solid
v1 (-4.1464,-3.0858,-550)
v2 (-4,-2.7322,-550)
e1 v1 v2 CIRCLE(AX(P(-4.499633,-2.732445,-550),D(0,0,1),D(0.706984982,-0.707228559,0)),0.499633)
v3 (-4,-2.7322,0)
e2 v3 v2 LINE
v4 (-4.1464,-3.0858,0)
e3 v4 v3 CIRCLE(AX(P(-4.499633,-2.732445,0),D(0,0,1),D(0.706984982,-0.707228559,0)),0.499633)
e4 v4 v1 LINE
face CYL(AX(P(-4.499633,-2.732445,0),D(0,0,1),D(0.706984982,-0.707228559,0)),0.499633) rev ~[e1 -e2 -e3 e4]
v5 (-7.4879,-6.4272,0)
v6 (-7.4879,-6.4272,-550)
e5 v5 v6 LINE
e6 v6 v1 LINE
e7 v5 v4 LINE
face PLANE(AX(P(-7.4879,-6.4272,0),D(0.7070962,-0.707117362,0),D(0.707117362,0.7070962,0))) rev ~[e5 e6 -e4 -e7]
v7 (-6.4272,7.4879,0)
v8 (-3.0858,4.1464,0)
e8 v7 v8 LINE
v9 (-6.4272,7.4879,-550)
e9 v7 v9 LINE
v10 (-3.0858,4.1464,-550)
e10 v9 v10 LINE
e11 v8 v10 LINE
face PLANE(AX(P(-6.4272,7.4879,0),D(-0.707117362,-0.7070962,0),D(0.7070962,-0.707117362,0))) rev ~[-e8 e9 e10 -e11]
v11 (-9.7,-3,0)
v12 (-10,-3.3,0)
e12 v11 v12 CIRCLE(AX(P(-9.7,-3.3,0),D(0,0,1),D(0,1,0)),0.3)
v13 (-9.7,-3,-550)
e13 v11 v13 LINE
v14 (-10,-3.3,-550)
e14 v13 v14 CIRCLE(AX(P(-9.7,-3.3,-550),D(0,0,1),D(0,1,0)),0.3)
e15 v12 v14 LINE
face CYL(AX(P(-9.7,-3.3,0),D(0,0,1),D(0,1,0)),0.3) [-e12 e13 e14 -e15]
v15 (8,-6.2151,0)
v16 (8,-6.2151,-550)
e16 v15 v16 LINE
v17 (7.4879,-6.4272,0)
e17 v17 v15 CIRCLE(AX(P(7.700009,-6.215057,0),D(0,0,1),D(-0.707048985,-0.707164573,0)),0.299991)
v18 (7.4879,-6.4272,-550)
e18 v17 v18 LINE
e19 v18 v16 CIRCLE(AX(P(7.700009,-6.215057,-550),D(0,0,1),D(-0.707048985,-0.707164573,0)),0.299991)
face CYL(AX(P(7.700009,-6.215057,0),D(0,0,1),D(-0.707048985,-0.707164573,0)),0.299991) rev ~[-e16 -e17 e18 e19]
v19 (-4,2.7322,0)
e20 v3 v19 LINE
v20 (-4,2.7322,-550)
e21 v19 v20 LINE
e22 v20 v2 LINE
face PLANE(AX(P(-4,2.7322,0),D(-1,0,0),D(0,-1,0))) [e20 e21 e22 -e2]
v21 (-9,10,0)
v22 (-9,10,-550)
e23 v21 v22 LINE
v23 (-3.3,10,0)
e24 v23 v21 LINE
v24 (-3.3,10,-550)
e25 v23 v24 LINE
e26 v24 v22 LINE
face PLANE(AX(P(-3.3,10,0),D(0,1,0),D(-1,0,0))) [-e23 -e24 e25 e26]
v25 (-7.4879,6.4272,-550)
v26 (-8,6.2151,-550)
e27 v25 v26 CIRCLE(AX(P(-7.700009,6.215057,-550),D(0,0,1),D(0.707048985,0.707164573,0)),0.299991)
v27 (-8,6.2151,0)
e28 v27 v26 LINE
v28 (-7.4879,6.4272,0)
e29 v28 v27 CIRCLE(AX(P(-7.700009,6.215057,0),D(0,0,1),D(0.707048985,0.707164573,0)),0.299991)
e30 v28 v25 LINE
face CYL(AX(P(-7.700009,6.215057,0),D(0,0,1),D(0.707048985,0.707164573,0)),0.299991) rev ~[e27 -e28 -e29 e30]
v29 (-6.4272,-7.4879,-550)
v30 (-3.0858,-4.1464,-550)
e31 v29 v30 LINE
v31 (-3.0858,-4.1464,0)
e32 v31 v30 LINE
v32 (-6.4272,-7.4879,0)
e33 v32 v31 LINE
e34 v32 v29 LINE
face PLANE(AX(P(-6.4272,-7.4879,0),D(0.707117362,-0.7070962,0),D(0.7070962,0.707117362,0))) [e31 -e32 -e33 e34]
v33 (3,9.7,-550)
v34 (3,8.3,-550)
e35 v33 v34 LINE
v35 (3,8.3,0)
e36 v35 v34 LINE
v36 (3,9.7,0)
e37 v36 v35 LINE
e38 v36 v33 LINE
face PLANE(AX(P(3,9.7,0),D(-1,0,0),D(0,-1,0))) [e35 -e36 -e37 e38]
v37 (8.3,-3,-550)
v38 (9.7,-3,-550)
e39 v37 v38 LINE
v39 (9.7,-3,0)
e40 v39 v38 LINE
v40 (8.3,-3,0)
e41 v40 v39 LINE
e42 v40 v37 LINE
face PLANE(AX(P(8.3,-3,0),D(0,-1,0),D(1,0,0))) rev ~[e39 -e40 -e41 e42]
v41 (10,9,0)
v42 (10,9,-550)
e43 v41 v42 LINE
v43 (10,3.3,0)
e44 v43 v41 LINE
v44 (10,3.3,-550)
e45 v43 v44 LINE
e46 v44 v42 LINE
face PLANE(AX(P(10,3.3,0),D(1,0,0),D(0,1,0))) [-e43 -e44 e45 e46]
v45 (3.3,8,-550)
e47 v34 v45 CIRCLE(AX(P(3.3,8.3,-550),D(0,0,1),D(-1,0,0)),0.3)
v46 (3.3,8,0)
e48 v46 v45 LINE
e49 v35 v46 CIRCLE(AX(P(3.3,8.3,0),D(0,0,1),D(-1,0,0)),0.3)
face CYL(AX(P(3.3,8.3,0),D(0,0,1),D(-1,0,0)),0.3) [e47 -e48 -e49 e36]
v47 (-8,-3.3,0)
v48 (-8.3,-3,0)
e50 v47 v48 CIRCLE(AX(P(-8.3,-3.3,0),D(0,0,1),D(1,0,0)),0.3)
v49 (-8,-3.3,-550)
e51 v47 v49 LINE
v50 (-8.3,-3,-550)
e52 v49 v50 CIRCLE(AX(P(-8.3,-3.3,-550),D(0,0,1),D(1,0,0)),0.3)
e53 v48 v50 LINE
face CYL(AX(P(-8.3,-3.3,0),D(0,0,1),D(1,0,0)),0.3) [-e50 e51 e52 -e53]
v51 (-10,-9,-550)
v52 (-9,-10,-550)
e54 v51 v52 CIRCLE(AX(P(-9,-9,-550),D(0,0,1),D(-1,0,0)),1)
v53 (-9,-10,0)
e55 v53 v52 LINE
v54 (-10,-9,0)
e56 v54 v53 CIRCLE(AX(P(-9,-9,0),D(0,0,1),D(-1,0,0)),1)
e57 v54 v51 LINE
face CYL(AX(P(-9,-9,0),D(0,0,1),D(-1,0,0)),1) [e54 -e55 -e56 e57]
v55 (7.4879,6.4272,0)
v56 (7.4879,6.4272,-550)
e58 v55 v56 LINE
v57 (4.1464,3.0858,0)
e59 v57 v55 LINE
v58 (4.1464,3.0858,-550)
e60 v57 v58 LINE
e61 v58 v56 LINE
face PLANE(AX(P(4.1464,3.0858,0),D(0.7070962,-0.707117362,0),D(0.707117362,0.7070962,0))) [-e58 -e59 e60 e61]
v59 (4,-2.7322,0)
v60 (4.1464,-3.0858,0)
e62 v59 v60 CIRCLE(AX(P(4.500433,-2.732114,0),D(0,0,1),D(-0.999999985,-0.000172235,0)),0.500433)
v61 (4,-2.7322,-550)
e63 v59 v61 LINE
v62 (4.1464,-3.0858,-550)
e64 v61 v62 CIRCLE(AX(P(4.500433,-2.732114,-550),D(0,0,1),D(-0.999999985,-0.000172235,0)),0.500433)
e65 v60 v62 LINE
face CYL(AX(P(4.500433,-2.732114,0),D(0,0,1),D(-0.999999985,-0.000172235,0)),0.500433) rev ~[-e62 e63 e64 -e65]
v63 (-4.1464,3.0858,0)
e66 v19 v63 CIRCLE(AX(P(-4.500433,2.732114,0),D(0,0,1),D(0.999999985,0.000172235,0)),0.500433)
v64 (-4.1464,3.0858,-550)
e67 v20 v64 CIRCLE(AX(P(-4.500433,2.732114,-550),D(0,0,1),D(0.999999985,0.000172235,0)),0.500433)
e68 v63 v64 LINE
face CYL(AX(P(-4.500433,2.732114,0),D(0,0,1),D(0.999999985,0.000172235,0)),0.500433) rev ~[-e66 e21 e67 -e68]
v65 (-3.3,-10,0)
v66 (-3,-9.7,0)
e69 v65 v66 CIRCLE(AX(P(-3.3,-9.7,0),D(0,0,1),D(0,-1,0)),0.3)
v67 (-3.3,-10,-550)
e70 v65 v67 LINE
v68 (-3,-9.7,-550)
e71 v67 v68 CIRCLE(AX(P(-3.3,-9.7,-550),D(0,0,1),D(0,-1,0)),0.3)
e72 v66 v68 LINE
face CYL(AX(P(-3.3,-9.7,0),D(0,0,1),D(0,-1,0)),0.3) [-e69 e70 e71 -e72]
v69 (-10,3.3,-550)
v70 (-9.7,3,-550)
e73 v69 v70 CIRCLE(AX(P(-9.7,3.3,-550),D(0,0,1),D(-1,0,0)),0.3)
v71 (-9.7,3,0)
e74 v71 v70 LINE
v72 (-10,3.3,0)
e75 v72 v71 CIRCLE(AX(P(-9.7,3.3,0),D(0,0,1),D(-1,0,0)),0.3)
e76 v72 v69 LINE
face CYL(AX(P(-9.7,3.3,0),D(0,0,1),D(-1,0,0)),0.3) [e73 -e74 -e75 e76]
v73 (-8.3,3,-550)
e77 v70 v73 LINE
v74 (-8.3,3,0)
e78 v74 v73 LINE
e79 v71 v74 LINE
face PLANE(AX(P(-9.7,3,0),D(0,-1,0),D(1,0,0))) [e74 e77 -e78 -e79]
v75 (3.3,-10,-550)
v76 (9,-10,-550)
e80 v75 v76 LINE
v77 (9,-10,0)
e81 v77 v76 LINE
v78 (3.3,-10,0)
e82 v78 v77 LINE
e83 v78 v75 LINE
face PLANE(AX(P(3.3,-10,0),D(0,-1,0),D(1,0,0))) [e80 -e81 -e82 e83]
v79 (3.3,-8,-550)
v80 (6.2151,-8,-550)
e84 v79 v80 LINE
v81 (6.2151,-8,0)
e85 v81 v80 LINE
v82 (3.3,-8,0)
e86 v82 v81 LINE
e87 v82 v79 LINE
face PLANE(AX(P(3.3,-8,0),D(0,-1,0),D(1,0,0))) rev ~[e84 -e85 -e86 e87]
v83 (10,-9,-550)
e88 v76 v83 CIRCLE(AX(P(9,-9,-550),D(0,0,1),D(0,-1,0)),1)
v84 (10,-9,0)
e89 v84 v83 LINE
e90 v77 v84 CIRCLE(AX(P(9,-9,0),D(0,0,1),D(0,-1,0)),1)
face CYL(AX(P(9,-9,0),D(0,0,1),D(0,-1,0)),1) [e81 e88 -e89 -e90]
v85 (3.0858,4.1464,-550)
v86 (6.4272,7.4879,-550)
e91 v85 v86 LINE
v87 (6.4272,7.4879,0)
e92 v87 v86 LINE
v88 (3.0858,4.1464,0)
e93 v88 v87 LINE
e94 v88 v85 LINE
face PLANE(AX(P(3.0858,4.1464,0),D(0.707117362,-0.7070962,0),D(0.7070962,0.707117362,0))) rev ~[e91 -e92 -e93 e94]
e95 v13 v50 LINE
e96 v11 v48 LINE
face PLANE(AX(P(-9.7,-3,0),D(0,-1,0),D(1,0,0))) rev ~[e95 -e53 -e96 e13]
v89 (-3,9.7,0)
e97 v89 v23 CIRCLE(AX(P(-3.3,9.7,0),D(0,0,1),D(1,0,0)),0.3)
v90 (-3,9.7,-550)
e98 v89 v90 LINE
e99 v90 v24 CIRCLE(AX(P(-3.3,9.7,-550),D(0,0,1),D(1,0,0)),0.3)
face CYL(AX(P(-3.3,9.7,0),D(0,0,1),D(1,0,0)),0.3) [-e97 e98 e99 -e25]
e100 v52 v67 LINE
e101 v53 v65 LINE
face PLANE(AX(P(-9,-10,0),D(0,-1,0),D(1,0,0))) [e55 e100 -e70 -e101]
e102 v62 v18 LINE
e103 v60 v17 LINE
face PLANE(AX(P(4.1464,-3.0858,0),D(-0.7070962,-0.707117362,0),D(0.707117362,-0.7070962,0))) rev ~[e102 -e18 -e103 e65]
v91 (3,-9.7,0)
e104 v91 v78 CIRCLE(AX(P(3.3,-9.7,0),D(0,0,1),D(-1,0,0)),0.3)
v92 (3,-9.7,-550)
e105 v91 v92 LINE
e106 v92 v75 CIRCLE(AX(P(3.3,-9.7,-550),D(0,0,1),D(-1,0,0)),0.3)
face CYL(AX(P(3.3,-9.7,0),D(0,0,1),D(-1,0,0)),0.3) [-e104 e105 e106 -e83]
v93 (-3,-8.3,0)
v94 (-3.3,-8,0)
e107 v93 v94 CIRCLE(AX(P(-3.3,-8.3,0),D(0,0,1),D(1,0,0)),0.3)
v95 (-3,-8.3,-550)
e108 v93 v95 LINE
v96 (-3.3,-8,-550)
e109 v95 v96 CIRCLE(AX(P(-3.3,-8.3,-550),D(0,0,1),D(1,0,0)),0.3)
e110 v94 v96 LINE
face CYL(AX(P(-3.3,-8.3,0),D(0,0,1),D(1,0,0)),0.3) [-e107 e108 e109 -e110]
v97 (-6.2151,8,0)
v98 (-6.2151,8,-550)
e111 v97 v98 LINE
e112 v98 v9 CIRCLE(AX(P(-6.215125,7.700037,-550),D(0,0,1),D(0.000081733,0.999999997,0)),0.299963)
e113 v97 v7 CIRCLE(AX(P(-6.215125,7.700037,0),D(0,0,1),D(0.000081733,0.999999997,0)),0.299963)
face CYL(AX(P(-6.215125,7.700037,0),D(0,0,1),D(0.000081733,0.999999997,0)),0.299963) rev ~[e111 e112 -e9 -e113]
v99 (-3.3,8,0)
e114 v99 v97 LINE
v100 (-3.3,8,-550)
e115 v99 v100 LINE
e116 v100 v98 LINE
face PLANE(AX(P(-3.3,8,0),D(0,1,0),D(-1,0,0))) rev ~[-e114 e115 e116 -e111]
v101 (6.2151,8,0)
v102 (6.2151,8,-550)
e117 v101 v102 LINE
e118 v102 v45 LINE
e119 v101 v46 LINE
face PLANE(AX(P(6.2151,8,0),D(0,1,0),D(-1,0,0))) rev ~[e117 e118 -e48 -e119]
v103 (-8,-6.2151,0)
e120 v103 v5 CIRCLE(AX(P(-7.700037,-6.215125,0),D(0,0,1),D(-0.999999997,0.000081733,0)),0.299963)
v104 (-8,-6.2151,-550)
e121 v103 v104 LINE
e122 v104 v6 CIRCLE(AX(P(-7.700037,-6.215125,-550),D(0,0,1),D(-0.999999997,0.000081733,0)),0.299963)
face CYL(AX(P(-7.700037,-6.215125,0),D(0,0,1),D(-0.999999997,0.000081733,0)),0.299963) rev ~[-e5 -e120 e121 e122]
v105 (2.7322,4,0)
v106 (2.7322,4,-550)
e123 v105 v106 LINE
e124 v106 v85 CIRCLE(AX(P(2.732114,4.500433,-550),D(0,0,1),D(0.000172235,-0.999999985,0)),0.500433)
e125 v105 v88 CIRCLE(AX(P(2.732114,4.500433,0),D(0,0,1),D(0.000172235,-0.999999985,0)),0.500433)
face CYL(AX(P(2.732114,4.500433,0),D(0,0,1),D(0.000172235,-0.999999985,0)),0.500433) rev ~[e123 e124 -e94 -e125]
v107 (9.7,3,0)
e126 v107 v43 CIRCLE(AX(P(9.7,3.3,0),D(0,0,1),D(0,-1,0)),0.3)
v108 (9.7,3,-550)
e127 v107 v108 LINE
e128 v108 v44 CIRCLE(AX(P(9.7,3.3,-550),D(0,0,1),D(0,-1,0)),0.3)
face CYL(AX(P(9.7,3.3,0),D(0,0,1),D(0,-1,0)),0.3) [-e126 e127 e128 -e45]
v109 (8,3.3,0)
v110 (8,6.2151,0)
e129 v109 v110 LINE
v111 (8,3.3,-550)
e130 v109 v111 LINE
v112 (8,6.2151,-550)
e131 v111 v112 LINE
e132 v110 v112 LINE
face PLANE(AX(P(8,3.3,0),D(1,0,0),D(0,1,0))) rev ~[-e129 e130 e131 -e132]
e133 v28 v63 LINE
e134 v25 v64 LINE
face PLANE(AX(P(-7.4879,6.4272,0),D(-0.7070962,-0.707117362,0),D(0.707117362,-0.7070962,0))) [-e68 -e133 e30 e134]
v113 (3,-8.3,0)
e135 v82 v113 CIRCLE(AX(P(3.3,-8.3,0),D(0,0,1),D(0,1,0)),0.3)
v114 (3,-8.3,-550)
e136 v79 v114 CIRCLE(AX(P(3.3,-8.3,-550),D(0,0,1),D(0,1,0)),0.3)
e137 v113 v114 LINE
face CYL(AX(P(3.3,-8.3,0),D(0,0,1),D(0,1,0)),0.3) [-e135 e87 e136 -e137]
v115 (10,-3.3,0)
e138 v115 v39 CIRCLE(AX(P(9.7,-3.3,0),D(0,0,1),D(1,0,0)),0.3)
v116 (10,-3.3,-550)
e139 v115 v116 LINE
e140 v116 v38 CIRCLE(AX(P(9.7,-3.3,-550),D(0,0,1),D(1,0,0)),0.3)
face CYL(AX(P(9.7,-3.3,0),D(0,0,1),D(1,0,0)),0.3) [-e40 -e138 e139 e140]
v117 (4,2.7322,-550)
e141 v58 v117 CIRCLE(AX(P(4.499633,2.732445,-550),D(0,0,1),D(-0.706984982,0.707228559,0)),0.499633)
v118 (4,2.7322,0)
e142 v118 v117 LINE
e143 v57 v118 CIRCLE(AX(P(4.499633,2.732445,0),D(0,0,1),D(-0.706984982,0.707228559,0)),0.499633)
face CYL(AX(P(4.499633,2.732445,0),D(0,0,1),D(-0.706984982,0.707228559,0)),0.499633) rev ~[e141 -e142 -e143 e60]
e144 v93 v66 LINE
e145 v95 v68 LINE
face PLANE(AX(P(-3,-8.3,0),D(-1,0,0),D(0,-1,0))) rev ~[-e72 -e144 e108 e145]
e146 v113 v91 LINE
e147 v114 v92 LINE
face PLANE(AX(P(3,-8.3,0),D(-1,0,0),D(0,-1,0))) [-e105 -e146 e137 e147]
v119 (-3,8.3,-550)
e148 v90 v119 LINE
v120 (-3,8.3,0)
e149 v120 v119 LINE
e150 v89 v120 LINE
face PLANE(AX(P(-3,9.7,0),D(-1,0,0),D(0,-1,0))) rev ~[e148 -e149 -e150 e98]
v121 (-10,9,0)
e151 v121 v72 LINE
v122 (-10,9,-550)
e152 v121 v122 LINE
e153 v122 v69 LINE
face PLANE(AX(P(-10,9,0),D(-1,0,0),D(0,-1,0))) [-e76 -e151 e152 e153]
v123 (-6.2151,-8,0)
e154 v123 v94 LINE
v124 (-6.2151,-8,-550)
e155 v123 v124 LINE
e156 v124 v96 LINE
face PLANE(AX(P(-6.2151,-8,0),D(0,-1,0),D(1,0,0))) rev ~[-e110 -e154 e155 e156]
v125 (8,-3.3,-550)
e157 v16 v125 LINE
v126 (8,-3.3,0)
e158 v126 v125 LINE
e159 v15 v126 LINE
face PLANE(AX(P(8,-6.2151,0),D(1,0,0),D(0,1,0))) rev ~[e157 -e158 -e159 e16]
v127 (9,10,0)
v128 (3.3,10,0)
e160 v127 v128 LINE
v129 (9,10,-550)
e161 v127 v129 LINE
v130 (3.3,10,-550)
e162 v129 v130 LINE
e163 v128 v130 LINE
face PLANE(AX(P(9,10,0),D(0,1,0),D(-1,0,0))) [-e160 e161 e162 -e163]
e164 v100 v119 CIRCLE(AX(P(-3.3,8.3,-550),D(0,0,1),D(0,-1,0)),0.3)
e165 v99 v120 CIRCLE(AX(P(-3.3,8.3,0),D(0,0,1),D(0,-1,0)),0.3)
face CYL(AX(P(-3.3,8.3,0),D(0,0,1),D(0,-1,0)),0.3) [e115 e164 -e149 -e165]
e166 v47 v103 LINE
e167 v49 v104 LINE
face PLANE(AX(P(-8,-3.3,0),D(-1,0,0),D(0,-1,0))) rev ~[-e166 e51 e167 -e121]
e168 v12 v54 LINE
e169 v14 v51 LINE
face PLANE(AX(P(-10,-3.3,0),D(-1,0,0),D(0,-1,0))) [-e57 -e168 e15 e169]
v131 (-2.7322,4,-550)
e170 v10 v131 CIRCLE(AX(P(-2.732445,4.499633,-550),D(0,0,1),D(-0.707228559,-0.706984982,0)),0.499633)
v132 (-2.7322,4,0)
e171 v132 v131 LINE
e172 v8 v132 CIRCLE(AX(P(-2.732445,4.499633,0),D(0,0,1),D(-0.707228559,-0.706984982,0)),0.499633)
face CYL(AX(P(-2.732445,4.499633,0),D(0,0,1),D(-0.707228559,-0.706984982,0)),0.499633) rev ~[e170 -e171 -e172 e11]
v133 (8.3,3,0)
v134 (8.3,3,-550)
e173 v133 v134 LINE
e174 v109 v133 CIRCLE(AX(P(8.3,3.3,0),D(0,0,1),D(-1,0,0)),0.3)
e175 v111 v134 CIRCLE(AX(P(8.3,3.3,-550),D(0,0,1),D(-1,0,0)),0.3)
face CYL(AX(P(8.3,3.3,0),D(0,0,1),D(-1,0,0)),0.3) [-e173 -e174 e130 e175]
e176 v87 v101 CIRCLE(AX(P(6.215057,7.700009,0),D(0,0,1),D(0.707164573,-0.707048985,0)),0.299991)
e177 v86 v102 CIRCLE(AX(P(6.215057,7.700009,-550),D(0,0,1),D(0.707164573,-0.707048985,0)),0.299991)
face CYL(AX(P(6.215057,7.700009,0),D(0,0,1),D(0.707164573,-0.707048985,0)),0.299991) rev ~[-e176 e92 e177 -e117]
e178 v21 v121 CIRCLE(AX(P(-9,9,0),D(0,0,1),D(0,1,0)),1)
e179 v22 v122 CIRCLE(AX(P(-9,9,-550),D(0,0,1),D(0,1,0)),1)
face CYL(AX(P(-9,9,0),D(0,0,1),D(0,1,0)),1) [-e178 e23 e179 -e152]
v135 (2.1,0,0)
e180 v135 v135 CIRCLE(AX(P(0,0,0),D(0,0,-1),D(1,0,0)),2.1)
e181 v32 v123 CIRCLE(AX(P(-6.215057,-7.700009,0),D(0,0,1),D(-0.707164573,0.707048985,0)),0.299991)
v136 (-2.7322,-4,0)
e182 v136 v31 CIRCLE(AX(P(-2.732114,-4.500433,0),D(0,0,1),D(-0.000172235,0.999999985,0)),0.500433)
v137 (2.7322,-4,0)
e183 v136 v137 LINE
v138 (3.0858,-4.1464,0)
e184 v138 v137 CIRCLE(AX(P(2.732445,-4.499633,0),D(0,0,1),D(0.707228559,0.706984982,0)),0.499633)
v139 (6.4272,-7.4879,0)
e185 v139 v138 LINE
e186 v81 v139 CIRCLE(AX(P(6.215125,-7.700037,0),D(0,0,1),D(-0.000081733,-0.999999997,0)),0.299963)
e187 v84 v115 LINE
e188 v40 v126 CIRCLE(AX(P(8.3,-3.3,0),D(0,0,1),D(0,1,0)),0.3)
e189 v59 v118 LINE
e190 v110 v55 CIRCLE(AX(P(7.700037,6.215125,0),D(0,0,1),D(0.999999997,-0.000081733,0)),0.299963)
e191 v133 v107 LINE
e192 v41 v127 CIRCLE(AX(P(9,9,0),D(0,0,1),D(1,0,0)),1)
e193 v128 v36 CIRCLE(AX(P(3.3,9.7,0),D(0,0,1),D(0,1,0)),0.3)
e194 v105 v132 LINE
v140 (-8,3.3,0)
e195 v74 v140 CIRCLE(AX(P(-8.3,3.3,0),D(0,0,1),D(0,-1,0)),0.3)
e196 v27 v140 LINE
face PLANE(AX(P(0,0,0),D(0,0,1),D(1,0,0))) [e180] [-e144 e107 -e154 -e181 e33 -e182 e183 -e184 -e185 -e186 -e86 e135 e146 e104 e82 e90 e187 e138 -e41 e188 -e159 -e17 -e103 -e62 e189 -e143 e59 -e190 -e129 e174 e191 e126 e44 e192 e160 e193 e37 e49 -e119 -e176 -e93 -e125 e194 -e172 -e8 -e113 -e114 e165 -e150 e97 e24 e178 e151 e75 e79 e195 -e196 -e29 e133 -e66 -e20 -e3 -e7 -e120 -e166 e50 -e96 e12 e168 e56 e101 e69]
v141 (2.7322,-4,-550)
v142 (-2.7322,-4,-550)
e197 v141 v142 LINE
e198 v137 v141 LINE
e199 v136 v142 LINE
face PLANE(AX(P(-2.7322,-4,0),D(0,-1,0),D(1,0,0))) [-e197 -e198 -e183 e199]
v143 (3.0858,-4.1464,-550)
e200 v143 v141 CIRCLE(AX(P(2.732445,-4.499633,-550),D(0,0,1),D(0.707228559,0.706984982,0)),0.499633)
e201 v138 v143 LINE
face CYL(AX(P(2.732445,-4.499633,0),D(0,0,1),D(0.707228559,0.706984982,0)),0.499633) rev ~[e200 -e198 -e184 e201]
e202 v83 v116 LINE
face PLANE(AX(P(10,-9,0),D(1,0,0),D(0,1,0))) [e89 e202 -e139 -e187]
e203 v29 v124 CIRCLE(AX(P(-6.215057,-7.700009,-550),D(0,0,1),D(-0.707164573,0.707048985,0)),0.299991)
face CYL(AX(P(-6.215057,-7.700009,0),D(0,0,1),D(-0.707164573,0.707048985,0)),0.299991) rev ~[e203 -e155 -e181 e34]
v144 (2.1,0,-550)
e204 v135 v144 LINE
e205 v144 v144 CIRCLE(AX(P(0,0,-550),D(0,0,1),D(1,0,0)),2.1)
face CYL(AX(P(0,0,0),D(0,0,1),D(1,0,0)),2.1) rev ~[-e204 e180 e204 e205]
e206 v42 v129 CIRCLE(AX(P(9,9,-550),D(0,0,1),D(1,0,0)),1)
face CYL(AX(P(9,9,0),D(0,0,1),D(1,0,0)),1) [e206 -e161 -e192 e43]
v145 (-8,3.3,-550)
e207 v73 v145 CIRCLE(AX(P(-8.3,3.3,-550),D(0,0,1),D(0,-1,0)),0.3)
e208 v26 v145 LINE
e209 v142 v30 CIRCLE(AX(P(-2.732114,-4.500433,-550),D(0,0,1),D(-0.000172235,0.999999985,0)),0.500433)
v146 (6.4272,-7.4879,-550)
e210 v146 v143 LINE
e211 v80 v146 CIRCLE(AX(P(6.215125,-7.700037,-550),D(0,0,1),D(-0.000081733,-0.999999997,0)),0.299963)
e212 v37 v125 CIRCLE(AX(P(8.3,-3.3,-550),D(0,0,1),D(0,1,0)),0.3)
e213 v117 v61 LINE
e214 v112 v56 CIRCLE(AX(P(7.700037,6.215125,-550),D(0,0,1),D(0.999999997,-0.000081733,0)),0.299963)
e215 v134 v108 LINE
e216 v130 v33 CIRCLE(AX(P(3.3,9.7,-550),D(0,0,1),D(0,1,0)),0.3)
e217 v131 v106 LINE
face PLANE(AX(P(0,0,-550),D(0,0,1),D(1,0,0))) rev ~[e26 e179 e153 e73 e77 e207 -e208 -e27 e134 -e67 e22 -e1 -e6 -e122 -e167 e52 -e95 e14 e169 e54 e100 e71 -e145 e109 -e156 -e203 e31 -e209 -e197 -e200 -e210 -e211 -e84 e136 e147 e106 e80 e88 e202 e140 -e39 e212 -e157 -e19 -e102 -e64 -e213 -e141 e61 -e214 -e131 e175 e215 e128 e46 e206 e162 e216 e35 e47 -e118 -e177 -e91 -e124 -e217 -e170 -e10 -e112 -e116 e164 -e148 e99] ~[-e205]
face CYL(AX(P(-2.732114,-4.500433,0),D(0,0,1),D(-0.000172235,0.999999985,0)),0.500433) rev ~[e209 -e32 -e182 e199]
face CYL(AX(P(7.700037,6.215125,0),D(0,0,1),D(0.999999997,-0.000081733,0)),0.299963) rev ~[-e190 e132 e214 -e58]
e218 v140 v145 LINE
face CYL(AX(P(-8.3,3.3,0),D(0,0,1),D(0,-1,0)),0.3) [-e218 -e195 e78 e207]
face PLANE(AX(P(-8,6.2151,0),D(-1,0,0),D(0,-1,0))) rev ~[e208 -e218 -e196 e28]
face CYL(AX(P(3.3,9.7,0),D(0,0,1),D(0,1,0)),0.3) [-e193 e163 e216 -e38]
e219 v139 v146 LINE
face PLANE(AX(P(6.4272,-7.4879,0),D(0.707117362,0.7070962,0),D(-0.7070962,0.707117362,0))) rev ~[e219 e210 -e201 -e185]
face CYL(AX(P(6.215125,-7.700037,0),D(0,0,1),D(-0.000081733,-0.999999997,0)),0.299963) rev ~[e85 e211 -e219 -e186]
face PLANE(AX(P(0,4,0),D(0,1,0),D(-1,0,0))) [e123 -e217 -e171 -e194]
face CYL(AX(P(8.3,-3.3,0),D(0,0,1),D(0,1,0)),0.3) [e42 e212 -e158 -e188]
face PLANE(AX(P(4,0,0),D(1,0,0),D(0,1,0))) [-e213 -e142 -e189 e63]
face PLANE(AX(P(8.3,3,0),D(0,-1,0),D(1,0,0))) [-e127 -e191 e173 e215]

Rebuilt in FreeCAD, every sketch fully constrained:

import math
import FreeCAD as App
import Part
import Sketcher
Q = App.Units.Quantity

doc = App.newDocument("Part")
body = doc.addObject("PartDesign::Body", "Body")

# Sketch on XY plane
sketch1 = doc.addObject("Sketcher::SketchObject", "Sketch")
body.addObject(sketch1)
sketch1.AttachmentSupport = (doc.XY_Plane, [""])
sketch1.MapMode = "FlatFace"
sketch1.addGeometry(Part.LineSegment(App.Vector(-4, 2.7322, 0), App.Vector(-4, -2.7322, 0)), False)
sketch1.addGeometry(Part.ArcOfCircle(Part.Circle(App.Vector(-4.5, -2.7322, 0), App.Vector(0, 0, 1), 0.500066), math.radians(-45), math.radians(0)), False)
sketch1.addGeometry(Part.LineSegment(App.Vector(-4.1464, -3.0858, 0), App.Vector(-7.4879, -6.4272, 0)), False)
sketch1.addGeometry(Part.ArcOfCircle(Part.Circle(App.Vector(-7.7, -6.2151, 0), App.Vector(0, 0, 1), 0.3), math.radians(180), math.radians(315)), False)
sketch1.addGeometry(Part.LineSegment(App.Vector(-8, -6.2151, 0), App.Vector(-8, -3.3, 0)), False)
sketch1.addGeometry(Part.ArcOfCircle(Part.Circle(App.Vector(-8.3, -3.3, 0), App.Vector(0, 0, 1), 0.3), math.radians(0), math.radians(90)), False)
sketch1.addGeometry(Part.LineSegment(App.Vector(-8.3, -3, 0), App.Vector(-9.7, -3, 0)), False)
sketch1.addGeometry(Part.ArcOfCircle(Part.Circle(App.Vector(-9.7, -3.3, 0), App.Vector(0, 0, 1), 0.3), math.radians(90), math.radians(180)), False)
sketch1.addGeometry(Part.LineSegment(App.Vector(-10, -3.3, 0), App.Vector(-10, -9, 0)), False)
sketch1.addGeometry(Part.ArcOfCircle(Part.Circle(App.Vector(-9, -9, 0), App.Vector(0, 0, 1), 1), math.radians(180), math.radians(270)), False)
sketch1.addGeometry(Part.LineSegment(App.Vector(-9, -10, 0), App.Vector(-3.3, -10, 0)), False)
sketch1.addGeometry(Part.ArcOfCircle(Part.Circle(App.Vector(-3.3, -9.7, 0), App.Vector(0, 0, 1), 0.3), math.radians(-90), math.radians(0)), False)
sketch1.addGeometry(Part.LineSegment(App.Vector(-3, -9.7, 0), App.Vector(-3, -8.3, 0)), False)
sketch1.addGeometry(Part.ArcOfCircle(Part.Circle(App.Vector(-3.3, -8.3, 0), App.Vector(0, 0, 1), 0.3), math.radians(0), math.radians(90)), False)
sketch1.addGeometry(Part.LineSegment(App.Vector(-3.3, -8, 0), App.Vector(-6.2151, -8, 0)), False)
sketch1.addGeometry(Part.ArcOfCircle(Part.Circle(App.Vector(-6.2151, -7.7, 0), App.Vector(0, 0, 1), 0.299955), math.radians(135), math.radians(270)), False)
sketch1.addGeometry(Part.LineSegment(App.Vector(-6.4272, -7.4879, 0), App.Vector(-3.0858, -4.1464, 0)), False)
sketch1.addGeometry(Part.ArcOfCircle(Part.Circle(App.Vector(-2.7322, -4.5, 0), App.Vector(0, 0, 1), 0.5), math.radians(90), math.radians(135)), False)
sketch1.addGeometry(Part.LineSegment(App.Vector(-2.7322, -4, 0), App.Vector(2.7322, -4, 0)), False)
sketch1.addGeometry(Part.ArcOfCircle(Part.Circle(App.Vector(2.7322, -4.5, 0), App.Vector(0, 0, 1), 0.500066), math.radians(45), math.radians(90)), False)
sketch1.addGeometry(Part.LineSegment(App.Vector(3.0858, -4.1464, 0), App.Vector(6.4272, -7.4879, 0)), False)
sketch1.addGeometry(Part.ArcOfCircle(Part.Circle(App.Vector(6.2151, -7.7, 0), App.Vector(0, 0, 1), 0.3), math.radians(-90), math.radians(45)), False)
sketch1.addGeometry(Part.LineSegment(App.Vector(6.2151, -8, 0), App.Vector(3.3, -8, 0)), False)
sketch1.addGeometry(Part.ArcOfCircle(Part.Circle(App.Vector(3.3, -8.3, 0), App.Vector(0, 0, 1), 0.3), math.radians(90), math.radians(180)), False)
sketch1.addGeometry(Part.LineSegment(App.Vector(3, -8.3, 0), App.Vector(3, -9.7, 0)), False)
sketch1.addGeometry(Part.ArcOfCircle(Part.Circle(App.Vector(3.3, -9.7, 0), App.Vector(0, 0, 1), 0.3), math.radians(180), math.radians(270)), False)
sketch1.addGeometry(Part.LineSegment(App.Vector(3.3, -10, 0), App.Vector(9, -10, 0)), False)
sketch1.addGeometry(Part.ArcOfCircle(Part.Circle(App.Vector(9, -9, 0), App.Vector(0, 0, 1), 1), math.radians(-90), math.radians(0)), False)
sketch1.addGeometry(Part.LineSegment(App.Vector(10, -9, 0), App.Vector(10, -3.3, 0)), False)
sketch1.addGeometry(Part.ArcOfCircle(Part.Circle(App.Vector(9.7, -3.3, 0), App.Vector(0, 0, 1), 0.3), math.radians(0), math.radians(90)), False)
sketch1.addGeometry(Part.LineSegment(App.Vector(9.7, -3, 0), App.Vector(8.3, -3, 0)), False)
sketch1.addGeometry(Part.ArcOfCircle(Part.Circle(App.Vector(8.3, -3.3, 0), App.Vector(0, 0, 1), 0.3), math.radians(90), math.radians(180)), False)
sketch1.addGeometry(Part.LineSegment(App.Vector(8, -3.3, 0), App.Vector(8, -6.2151, 0)), False)
sketch1.addGeometry(Part.ArcOfCircle(Part.Circle(App.Vector(7.7, -6.2151, 0), App.Vector(0, 0, 1), 0.299955), math.radians(-135), math.radians(0)), False)
sketch1.addGeometry(Part.LineSegment(App.Vector(7.4879, -6.4272, 0), App.Vector(4.1464, -3.0858, 0)), False)
sketch1.addGeometry(Part.ArcOfCircle(Part.Circle(App.Vector(4.5, -2.7322, 0), App.Vector(0, 0, 1), 0.5), math.radians(180), math.radians(225)), False)
sketch1.addGeometry(Part.LineSegment(App.Vector(4, -2.7322, 0), App.Vector(4, 2.7322, 0)), False)
sketch1.addGeometry(Part.ArcOfCircle(Part.Circle(App.Vector(4.5, 2.7322, 0), App.Vector(0, 0, 1), 0.500066), math.radians(135), math.radians(180)), False)
sketch1.addGeometry(Part.LineSegment(App.Vector(4.1464, 3.0858, 0), App.Vector(7.4879, 6.4272, 0)), False)
sketch1.addGeometry(Part.ArcOfCircle(Part.Circle(App.Vector(7.7, 6.2151, 0), App.Vector(0, 0, 1), 0.3), math.radians(0), math.radians(135)), False)
sketch1.addGeometry(Part.LineSegment(App.Vector(8, 6.2151, 0), App.Vector(8, 3.3, 0)), False)
sketch1.addGeometry(Part.ArcOfCircle(Part.Circle(App.Vector(8.3, 3.3, 0), App.Vector(0, 0, 1), 0.3), math.radians(180), math.radians(270)), False)
sketch1.addGeometry(Part.LineSegment(App.Vector(8.3, 3, 0), App.Vector(9.7, 3, 0)), False)
sketch1.addGeometry(Part.ArcOfCircle(Part.Circle(App.Vector(9.7, 3.3, 0), App.Vector(0, 0, 1), 0.3), math.radians(-90), math.radians(0)), False)
sketch1.addGeometry(Part.LineSegment(App.Vector(10, 3.3, 0), App.Vector(10, 9, 0)), False)
sketch1.addGeometry(Part.ArcOfCircle(Part.Circle(App.Vector(9, 9, 0), App.Vector(0, 0, 1), 1), math.radians(0), math.radians(90)), False)
sketch1.addGeometry(Part.LineSegment(App.Vector(9, 10, 0), App.Vector(3.3, 10, 0)), False)
sketch1.addGeometry(Part.ArcOfCircle(Part.Circle(App.Vector(3.3, 9.7, 0), App.Vector(0, 0, 1), 0.3), math.radians(90), math.radians(180)), False)
sketch1.addGeometry(Part.LineSegment(App.Vector(3, 9.7, 0), App.Vector(3, 8.3, 0)), False)
sketch1.addGeometry(Part.ArcOfCircle(Part.Circle(App.Vector(3.3, 8.3, 0), App.Vector(0, 0, 1), 0.3), math.radians(180), math.radians(270)), False)
sketch1.addGeometry(Part.LineSegment(App.Vector(3.3, 8, 0), App.Vector(6.2151, 8, 0)), False)
sketch1.addGeometry(Part.ArcOfCircle(Part.Circle(App.Vector(6.2151, 7.7, 0), App.Vector(0, 0, 1), 0.299955), math.radians(-45), math.radians(90)), False)
sketch1.addGeometry(Part.LineSegment(App.Vector(6.4272, 7.4879, 0), App.Vector(3.0858, 4.1464, 0)), False)
sketch1.addGeometry(Part.ArcOfCircle(Part.Circle(App.Vector(2.7322, 4.5, 0), App.Vector(0, 0, 1), 0.5), math.radians(-90), math.radians(-45)), False)
sketch1.addGeometry(Part.LineSegment(App.Vector(2.7322, 4, 0), App.Vector(-2.7322, 4, 0)), False)
sketch1.addGeometry(Part.ArcOfCircle(Part.Circle(App.Vector(-2.7322, 4.5, 0), App.Vector(0, 0, 1), 0.500066), math.radians(-135), math.radians(-90)), False)
sketch1.addGeometry(Part.LineSegment(App.Vector(-3.0858, 4.1464, 0), App.Vector(-6.4272, 7.4879, 0)), False)
sketch1.addGeometry(Part.ArcOfCircle(Part.Circle(App.Vector(-6.2151, 7.7, 0), App.Vector(0, 0, 1), 0.3), math.radians(90), math.radians(225)), False)
sketch1.addGeometry(Part.LineSegment(App.Vector(-6.2151, 8, 0), App.Vector(-3.3, 8, 0)), False)
sketch1.addGeometry(Part.ArcOfCircle(Part.Circle(App.Vector(-3.3, 8.3, 0), App.Vector(0, 0, 1), 0.3), math.radians(-90), math.radians(0)), False)
sketch1.addGeometry(Part.LineSegment(App.Vector(-3, 8.3, 0), App.Vector(-3, 9.7, 0)), False)
sketch1.addGeometry(Part.ArcOfCircle(Part.Circle(App.Vector(-3.3, 9.7, 0), App.Vector(0, 0, 1), 0.3), math.radians(0), math.radians(90)), False)
sketch1.addGeometry(Part.LineSegment(App.Vector(-3.3, 10, 0), App.Vector(-9, 10, 0)), False)
sketch1.addGeometry(Part.ArcOfCircle(Part.Circle(App.Vector(-9, 9, 0), App.Vector(0, 0, 1), 1), math.radians(90), math.radians(180)), False)
sketch1.addGeometry(Part.LineSegment(App.Vector(-10, 9, 0), App.Vector(-10, 3.3, 0)), False)
sketch1.addGeometry(Part.ArcOfCircle(Part.Circle(App.Vector(-9.7, 3.3, 0), App.Vector(0, 0, 1), 0.3), math.radians(180), math.radians(270)), False)
sketch1.addGeometry(Part.LineSegment(App.Vector(-9.7, 3, 0), App.Vector(-8.3, 3, 0)), False)
sketch1.addGeometry(Part.ArcOfCircle(Part.Circle(App.Vector(-8.3, 3.3, 0), App.Vector(0, 0, 1), 0.3), math.radians(-90), math.radians(0)), False)
sketch1.addGeometry(Part.LineSegment(App.Vector(-8, 3.3, 0), App.Vector(-8, 6.2151, 0)), False)
sketch1.addGeometry(Part.ArcOfCircle(Part.Circle(App.Vector(-7.7, 6.2151, 0), App.Vector(0, 0, 1), 0.299955), math.radians(45), math.radians(180)), False)
sketch1.addGeometry(Part.LineSegment(App.Vector(-7.4879, 6.4272, 0), App.Vector(-4.1464, 3.0858, 0)), False)
sketch1.addGeometry(Part.ArcOfCircle(Part.Circle(App.Vector(-4.5, 2.7322, 0), App.Vector(0, 0, 1), 0.5), math.radians(0), math.radians(45)), False)
sketch1.addConstraint(Sketcher.Constraint("Tangent", 0, 2, 1, 2))
sketch1.addConstraint(Sketcher.Constraint("Tangent", 1, 1, 2, 1))
sketch1.addConstraint(Sketcher.Constraint("Tangent", 2, 2, 3, 2))
sketch1.addConstraint(Sketcher.Constraint("Tangent", 3, 1, 4, 1))
sketch1.addConstraint(Sketcher.Constraint("Tangent", 4, 2, 5, 1))
sketch1.addConstraint(Sketcher.Constraint("Tangent", 5, 2, 6, 1))
sketch1.addConstraint(Sketcher.Constraint("Tangent", 6, 2, 7, 1))
sketch1.addConstraint(Sketcher.Constraint("Tangent", 7, 2, 8, 1))
sketch1.addConstraint(Sketcher.Constraint("Tangent", 8, 2, 9, 1))
sketch1.addConstraint(Sketcher.Constraint("Tangent", 9, 2, 10, 1))
sketch1.addConstraint(Sketcher.Constraint("Tangent", 10, 2, 11, 1))
sketch1.addConstraint(Sketcher.Constraint("Tangent", 11, 2, 12, 1))
sketch1.addConstraint(Sketcher.Constraint("Tangent", 12, 2, 13, 1))
sketch1.addConstraint(Sketcher.Constraint("Tangent", 13, 2, 14, 1))
sketch1.addConstraint(Sketcher.Constraint("Tangent", 14, 2, 15, 2))
sketch1.addConstraint(Sketcher.Constraint("Tangent", 15, 1, 16, 1))
sketch1.addConstraint(Sketcher.Constraint("Tangent", 16, 2, 17, 2))
sketch1.addConstraint(Sketcher.Constraint("Tangent", 17, 1, 18, 1))
sketch1.addConstraint(Sketcher.Constraint("Tangent", 18, 2, 19, 2))
sketch1.addConstraint(Sketcher.Constraint("Tangent", 19, 1, 20, 1))
sketch1.addConstraint(Sketcher.Constraint("Tangent", 20, 2, 21, 2))
sketch1.addConstraint(Sketcher.Constraint("Tangent", 21, 1, 22, 1))
sketch1.addConstraint(Sketcher.Constraint("Tangent", 22, 2, 23, 1))
sketch1.addConstraint(Sketcher.Constraint("Tangent", 23, 2, 24, 1))
sketch1.addConstraint(Sketcher.Constraint("Tangent", 24, 2, 25, 1))
sketch1.addConstraint(Sketcher.Constraint("Tangent", 25, 2, 26, 1))
sketch1.addConstraint(Sketcher.Constraint("Tangent", 26, 2, 27, 1))
sketch1.addConstraint(Sketcher.Constraint("Tangent", 27, 2, 28, 1))
sketch1.addConstraint(Sketcher.Constraint("Tangent", 28, 2, 29, 1))
sketch1.addConstraint(Sketcher.Constraint("Tangent", 29, 2, 30, 1))
sketch1.addConstraint(Sketcher.Constraint("Tangent", 30, 2, 31, 1))
sketch1.addConstraint(Sketcher.Constraint("Tangent", 31, 2, 32, 1))
sketch1.addConstraint(Sketcher.Constraint("Tangent", 32, 2, 33, 2))
sketch1.addConstraint(Sketcher.Constraint("Tangent", 33, 1, 34, 1))
sketch1.addConstraint(Sketcher.Constraint("Tangent", 34, 2, 35, 2))
sketch1.addConstraint(Sketcher.Constraint("Tangent", 35, 1, 36, 1))
sketch1.addConstraint(Sketcher.Constraint("Tangent", 36, 2, 37, 2))
sketch1.addConstraint(Sketcher.Constraint("Tangent", 37, 1, 38, 1))
sketch1.addConstraint(Sketcher.Constraint("Tangent", 38, 2, 39, 2))
sketch1.addConstraint(Sketcher.Constraint("Tangent", 39, 1, 40, 1))
sketch1.addConstraint(Sketcher.Constraint("Tangent", 40, 2, 41, 1))
sketch1.addConstraint(Sketcher.Constraint("Tangent", 41, 2, 42, 1))
sketch1.addConstraint(Sketcher.Constraint("Tangent", 42, 2, 43, 1))
sketch1.addConstraint(Sketcher.Constraint("Tangent", 43, 2, 44, 1))
sketch1.addConstraint(Sketcher.Constraint("Tangent", 44, 2, 45, 1))
sketch1.addConstraint(Sketcher.Constraint("Tangent", 45, 2, 46, 1))
sketch1.addConstraint(Sketcher.Constraint("Tangent", 46, 2, 47, 1))
sketch1.addConstraint(Sketcher.Constraint("Tangent", 47, 2, 48, 1))
sketch1.addConstraint(Sketcher.Constraint("Tangent", 48, 2, 49, 1))
sketch1.addConstraint(Sketcher.Constraint("Tangent", 49, 2, 50, 1))
sketch1.addConstraint(Sketcher.Constraint("Tangent", 50, 2, 51, 2))
sketch1.addConstraint(Sketcher.Constraint("Tangent", 51, 1, 52, 1))
sketch1.addConstraint(Sketcher.Constraint("Tangent", 52, 2, 53, 2))
sketch1.addConstraint(Sketcher.Constraint("Tangent", 53, 1, 54, 1))
sketch1.addConstraint(Sketcher.Constraint("Tangent", 54, 2, 55, 2))
sketch1.addConstraint(Sketcher.Constraint("Tangent", 55, 1, 56, 1))
sketch1.addConstraint(Sketcher.Constraint("Tangent", 56, 2, 57, 2))
sketch1.addConstraint(Sketcher.Constraint("Tangent", 57, 1, 58, 1))
sketch1.addConstraint(Sketcher.Constraint("Tangent", 58, 2, 59, 1))
sketch1.addConstraint(Sketcher.Constraint("Tangent", 59, 2, 60, 1))
sketch1.addConstraint(Sketcher.Constraint("Tangent", 60, 2, 61, 1))
sketch1.addConstraint(Sketcher.Constraint("Tangent", 61, 2, 62, 1))
sketch1.addConstraint(Sketcher.Constraint("Tangent", 62, 2, 63, 1))
sketch1.addConstraint(Sketcher.Constraint("Tangent", 63, 2, 64, 1))
sketch1.addConstraint(Sketcher.Constraint("Tangent", 64, 2, 65, 1))
sketch1.addConstraint(Sketcher.Constraint("Tangent", 65, 2, 66, 1))
sketch1.addConstraint(Sketcher.Constraint("Tangent", 66, 2, 67, 1))
sketch1.addConstraint(Sketcher.Constraint("Tangent", 67, 2, 68, 1))
sketch1.addConstraint(Sketcher.Constraint("Tangent", 68, 2, 69, 2))
sketch1.addConstraint(Sketcher.Constraint("Tangent", 69, 1, 70, 1))
sketch1.addConstraint(Sketcher.Constraint("Tangent", 70, 2, 71, 2))
sketch1.addConstraint(Sketcher.Constraint("Tangent", 71, 1, 0, 1))
sketch1.addConstraint(Sketcher.Constraint("Vertical", 0))
sketch1.addConstraint(Sketcher.Constraint("Vertical", 4))
sketch1.addConstraint(Sketcher.Constraint("Horizontal", 6))
sketch1.addConstraint(Sketcher.Constraint("Vertical", 8))
sketch1.addConstraint(Sketcher.Constraint("Horizontal", 10))
sketch1.addConstraint(Sketcher.Constraint("Vertical", 12))
sketch1.addConstraint(Sketcher.Constraint("Horizontal", 14))
sketch1.addConstraint(Sketcher.Constraint("Horizontal", 18))
sketch1.addConstraint(Sketcher.Constraint("Horizontal", 22))
sketch1.addConstraint(Sketcher.Constraint("Vertical", 24))
sketch1.addConstraint(Sketcher.Constraint("Horizontal", 26))
sketch1.addConstraint(Sketcher.Constraint("Vertical", 28))
sketch1.addConstraint(Sketcher.Constraint("Horizontal", 30))
sketch1.addConstraint(Sketcher.Constraint("Vertical", 32))
sketch1.addConstraint(Sketcher.Constraint("Vertical", 36))
sketch1.addConstraint(Sketcher.Constraint("Vertical", 40))
sketch1.addConstraint(Sketcher.Constraint("Horizontal", 42))
sketch1.addConstraint(Sketcher.Constraint("Vertical", 44))
sketch1.addConstraint(Sketcher.Constraint("Horizontal", 46))
sketch1.addConstraint(Sketcher.Constraint("Vertical", 48))
sketch1.addConstraint(Sketcher.Constraint("Horizontal", 50))
sketch1.addConstraint(Sketcher.Constraint("Horizontal", 54))
sketch1.addConstraint(Sketcher.Constraint("Horizontal", 58))
sketch1.addConstraint(Sketcher.Constraint("Vertical", 60))
sketch1.addConstraint(Sketcher.Constraint("Horizontal", 62))
sketch1.addConstraint(Sketcher.Constraint("Vertical", 64))
sketch1.addConstraint(Sketcher.Constraint("Horizontal", 66))
sketch1.addConstraint(Sketcher.Constraint("Vertical", 68))
sketch1.addConstraint(Sketcher.Constraint("Equal", 3, 5))
sketch1.addConstraint(Sketcher.Constraint("Equal", 5, 7))
sketch1.addConstraint(Sketcher.Constraint("Equal", 7, 11))
sketch1.addConstraint(Sketcher.Constraint("Equal", 11, 13))
sketch1.addConstraint(Sketcher.Constraint("Equal", 13, 15))
sketch1.addConstraint(Sketcher.Constraint("Equal", 1, 17))
sketch1.addConstraint(Sketcher.Constraint("Equal", 17, 19))
sketch1.addConstraint(Sketcher.Constraint("Equal", 15, 21))
sketch1.addConstraint(Sketcher.Constraint("Equal", 21, 23))
sketch1.addConstraint(Sketcher.Constraint("Equal", 23, 25))
sketch1.addConstraint(Sketcher.Constraint("Equal", 9, 27))
sketch1.addConstraint(Sketcher.Constraint("Equal", 25, 29))
sketch1.addConstraint(Sketcher.Constraint("Equal", 29, 31))
sketch1.addConstraint(Sketcher.Constraint("Equal", 31, 33))
sketch1.addConstraint(Sketcher.Constraint("Equal", 19, 35))
sketch1.addConstraint(Sketcher.Constraint("Equal", 35, 37))
sketch1.addConstraint(Sketcher.Constraint("Equal", 33, 39))
sketch1.addConstraint(Sketcher.Constraint("Equal", 39, 41))
sketch1.addConstraint(Sketcher.Constraint("Equal", 41, 43))
sketch1.addConstraint(Sketcher.Constraint("Equal", 27, 45))
sketch1.addConstraint(Sketcher.Constraint("Equal", 43, 47))
sketch1.addConstraint(Sketcher.Constraint("Equal", 47, 49))
sketch1.addConstraint(Sketcher.Constraint("Equal", 49, 51))
sketch1.addConstraint(Sketcher.Constraint("Equal", 37, 53))
sketch1.addConstraint(Sketcher.Constraint("Equal", 53, 55))
sketch1.addConstraint(Sketcher.Constraint("Equal", 51, 57))
sketch1.addConstraint(Sketcher.Constraint("Equal", 57, 59))
sketch1.addConstraint(Sketcher.Constraint("Equal", 59, 61))
sketch1.addConstraint(Sketcher.Constraint("Equal", 45, 63))
sketch1.addConstraint(Sketcher.Constraint("Equal", 61, 65))
sketch1.addConstraint(Sketcher.Constraint("Equal", 65, 67))
sketch1.addConstraint(Sketcher.Constraint("Equal", 67, 69))
sketch1.addConstraint(Sketcher.Constraint("Equal", 55, 71))
sketch1.addConstraint(Sketcher.Constraint("Symmetric", 1, 3, 37, 3, -1, 1))
sketch1.addConstraint(Sketcher.Constraint("Symmetric", 3, 3, 39, 3, -1, 1))
sketch1.addConstraint(Sketcher.Constraint("Symmetric", 7, 3, 43, 3, -1, 1))
sketch1.addConstraint(Sketcher.Constraint("Symmetric", 11, 3, 47, 3, -1, 1))
sketch1.addConstraint(Sketcher.Constraint("Symmetric", 15, 3, 51, 3, -1, 1))
sketch1.addConstraint(Sketcher.Constraint("Symmetric", 17, 3, 53, 3, -1, 1))
sketch1.addConstraint(Sketcher.Constraint("Symmetric", 21, 3, 57, 3, -1, 1))
sketch1.addConstraint(Sketcher.Constraint("Symmetric", 25, 3, 61, 3, -1, 1))
sketch1.addConstraint(Sketcher.Constraint("Symmetric", 29, 3, 65, 3, -1, 1))
sketch1.addConstraint(Sketcher.Constraint("Symmetric", 33, 3, 69, 3, -1, 1))
sketch1.addConstraint(Sketcher.Constraint("Symmetric", 15, 3, 21, 3, -2))
sketch1.addConstraint(Sketcher.Constraint("Symmetric", 11, 3, 25, 3, -2))
sketch1.addConstraint(Sketcher.Constraint("Symmetric", 7, 3, 29, 3, -2))
sketch1.addConstraint(Sketcher.Constraint("Symmetric", 3, 3, 33, 3, -2))
sketch1.addConstraint(Sketcher.Constraint("Parallel", 2, 16))
sketch1.addConstraint(Sketcher.Constraint("Perpendicular", 16, 20))
sketch1.addConstraint(Sketcher.Constraint("Parallel", 20, 34))
sketch1.addConstraint(Sketcher.Constraint("Perpendicular", 52, 56))
sketch1.addConstraint(Sketcher.Constraint("Parallel", 56, 70))
sketch1.addConstraint(Sketcher.Constraint("Horizontal", 1, 3, 35, 3))
sketch1.addConstraint(Sketcher.Constraint("Equal", 54, 0))
sketch1.addConstraint(Sketcher.Constraint("Equal", 58, 4))
sketch1.addConstraint(Sketcher.Constraint("Equal", 62, 8))
sketch1.addConstraint(Sketcher.Constraint("Equal", 66, 12))
sketch1.addConstraint(Sketcher.Constraint("Equal", 2, 16))
sketch1.addConstraint(Sketcher.Constraint("Radius", 9, Q("1 mm")))
sketch1.addConstraint(Sketcher.Constraint("Radius", 1, Q("0.5 mm")))
sketch1.addConstraint(Sketcher.Constraint("Radius", 3, Q("0.3 mm")))
sketch1.addConstraint(Sketcher.Constraint("DistanceX", 0, 2, -1, 1, Q("4 mm")))
sketch1.addConstraint(Sketcher.Constraint("DistanceX", 3, 1, -1, 1, Q("8 mm")))
sketch1.addConstraint(Sketcher.Constraint("DistanceX", 7, 2, -1, 1, Q("10 mm")))
sketch1.addConstraint(Sketcher.Constraint("DistanceX", 10, 1, 10, 2, Q("5.7 mm")))
sketch1.addConstraint(Sketcher.Constraint("DistanceX", 14, 2, 14, 1, Q("2.915 mm")))
pad1 = doc.addObject("PartDesign::Pad", "Pad")
body.addObject(pad1)
pad1.Profile = sketch1
pad1.Length = 550
pad1.Reversed = True

# Sketch on XY plane
sketch2 = doc.addObject("Sketcher::SketchObject", "Sketch001")
body.addObject(sketch2)
sketch2.AttachmentSupport = (doc.XY_Plane, [""])
sketch2.MapMode = "FlatFace"
sketch2.addGeometry(Part.Circle(App.Vector(0, 0, 0), App.Vector(0, 0, 1), 2.1), False)
sketch2.addConstraint(Sketcher.Constraint("Coincident", 0, 3, -1, 1))
sketch2.addConstraint(Sketcher.Constraint("Diameter", 0, Q("4.2 mm")))
pocket1 = doc.addObject("PartDesign::Pocket", "Pocket")
body.addObject(pocket1)
pocket1.Profile = sketch2
pocket1.Length = 550

doc.recompute()
